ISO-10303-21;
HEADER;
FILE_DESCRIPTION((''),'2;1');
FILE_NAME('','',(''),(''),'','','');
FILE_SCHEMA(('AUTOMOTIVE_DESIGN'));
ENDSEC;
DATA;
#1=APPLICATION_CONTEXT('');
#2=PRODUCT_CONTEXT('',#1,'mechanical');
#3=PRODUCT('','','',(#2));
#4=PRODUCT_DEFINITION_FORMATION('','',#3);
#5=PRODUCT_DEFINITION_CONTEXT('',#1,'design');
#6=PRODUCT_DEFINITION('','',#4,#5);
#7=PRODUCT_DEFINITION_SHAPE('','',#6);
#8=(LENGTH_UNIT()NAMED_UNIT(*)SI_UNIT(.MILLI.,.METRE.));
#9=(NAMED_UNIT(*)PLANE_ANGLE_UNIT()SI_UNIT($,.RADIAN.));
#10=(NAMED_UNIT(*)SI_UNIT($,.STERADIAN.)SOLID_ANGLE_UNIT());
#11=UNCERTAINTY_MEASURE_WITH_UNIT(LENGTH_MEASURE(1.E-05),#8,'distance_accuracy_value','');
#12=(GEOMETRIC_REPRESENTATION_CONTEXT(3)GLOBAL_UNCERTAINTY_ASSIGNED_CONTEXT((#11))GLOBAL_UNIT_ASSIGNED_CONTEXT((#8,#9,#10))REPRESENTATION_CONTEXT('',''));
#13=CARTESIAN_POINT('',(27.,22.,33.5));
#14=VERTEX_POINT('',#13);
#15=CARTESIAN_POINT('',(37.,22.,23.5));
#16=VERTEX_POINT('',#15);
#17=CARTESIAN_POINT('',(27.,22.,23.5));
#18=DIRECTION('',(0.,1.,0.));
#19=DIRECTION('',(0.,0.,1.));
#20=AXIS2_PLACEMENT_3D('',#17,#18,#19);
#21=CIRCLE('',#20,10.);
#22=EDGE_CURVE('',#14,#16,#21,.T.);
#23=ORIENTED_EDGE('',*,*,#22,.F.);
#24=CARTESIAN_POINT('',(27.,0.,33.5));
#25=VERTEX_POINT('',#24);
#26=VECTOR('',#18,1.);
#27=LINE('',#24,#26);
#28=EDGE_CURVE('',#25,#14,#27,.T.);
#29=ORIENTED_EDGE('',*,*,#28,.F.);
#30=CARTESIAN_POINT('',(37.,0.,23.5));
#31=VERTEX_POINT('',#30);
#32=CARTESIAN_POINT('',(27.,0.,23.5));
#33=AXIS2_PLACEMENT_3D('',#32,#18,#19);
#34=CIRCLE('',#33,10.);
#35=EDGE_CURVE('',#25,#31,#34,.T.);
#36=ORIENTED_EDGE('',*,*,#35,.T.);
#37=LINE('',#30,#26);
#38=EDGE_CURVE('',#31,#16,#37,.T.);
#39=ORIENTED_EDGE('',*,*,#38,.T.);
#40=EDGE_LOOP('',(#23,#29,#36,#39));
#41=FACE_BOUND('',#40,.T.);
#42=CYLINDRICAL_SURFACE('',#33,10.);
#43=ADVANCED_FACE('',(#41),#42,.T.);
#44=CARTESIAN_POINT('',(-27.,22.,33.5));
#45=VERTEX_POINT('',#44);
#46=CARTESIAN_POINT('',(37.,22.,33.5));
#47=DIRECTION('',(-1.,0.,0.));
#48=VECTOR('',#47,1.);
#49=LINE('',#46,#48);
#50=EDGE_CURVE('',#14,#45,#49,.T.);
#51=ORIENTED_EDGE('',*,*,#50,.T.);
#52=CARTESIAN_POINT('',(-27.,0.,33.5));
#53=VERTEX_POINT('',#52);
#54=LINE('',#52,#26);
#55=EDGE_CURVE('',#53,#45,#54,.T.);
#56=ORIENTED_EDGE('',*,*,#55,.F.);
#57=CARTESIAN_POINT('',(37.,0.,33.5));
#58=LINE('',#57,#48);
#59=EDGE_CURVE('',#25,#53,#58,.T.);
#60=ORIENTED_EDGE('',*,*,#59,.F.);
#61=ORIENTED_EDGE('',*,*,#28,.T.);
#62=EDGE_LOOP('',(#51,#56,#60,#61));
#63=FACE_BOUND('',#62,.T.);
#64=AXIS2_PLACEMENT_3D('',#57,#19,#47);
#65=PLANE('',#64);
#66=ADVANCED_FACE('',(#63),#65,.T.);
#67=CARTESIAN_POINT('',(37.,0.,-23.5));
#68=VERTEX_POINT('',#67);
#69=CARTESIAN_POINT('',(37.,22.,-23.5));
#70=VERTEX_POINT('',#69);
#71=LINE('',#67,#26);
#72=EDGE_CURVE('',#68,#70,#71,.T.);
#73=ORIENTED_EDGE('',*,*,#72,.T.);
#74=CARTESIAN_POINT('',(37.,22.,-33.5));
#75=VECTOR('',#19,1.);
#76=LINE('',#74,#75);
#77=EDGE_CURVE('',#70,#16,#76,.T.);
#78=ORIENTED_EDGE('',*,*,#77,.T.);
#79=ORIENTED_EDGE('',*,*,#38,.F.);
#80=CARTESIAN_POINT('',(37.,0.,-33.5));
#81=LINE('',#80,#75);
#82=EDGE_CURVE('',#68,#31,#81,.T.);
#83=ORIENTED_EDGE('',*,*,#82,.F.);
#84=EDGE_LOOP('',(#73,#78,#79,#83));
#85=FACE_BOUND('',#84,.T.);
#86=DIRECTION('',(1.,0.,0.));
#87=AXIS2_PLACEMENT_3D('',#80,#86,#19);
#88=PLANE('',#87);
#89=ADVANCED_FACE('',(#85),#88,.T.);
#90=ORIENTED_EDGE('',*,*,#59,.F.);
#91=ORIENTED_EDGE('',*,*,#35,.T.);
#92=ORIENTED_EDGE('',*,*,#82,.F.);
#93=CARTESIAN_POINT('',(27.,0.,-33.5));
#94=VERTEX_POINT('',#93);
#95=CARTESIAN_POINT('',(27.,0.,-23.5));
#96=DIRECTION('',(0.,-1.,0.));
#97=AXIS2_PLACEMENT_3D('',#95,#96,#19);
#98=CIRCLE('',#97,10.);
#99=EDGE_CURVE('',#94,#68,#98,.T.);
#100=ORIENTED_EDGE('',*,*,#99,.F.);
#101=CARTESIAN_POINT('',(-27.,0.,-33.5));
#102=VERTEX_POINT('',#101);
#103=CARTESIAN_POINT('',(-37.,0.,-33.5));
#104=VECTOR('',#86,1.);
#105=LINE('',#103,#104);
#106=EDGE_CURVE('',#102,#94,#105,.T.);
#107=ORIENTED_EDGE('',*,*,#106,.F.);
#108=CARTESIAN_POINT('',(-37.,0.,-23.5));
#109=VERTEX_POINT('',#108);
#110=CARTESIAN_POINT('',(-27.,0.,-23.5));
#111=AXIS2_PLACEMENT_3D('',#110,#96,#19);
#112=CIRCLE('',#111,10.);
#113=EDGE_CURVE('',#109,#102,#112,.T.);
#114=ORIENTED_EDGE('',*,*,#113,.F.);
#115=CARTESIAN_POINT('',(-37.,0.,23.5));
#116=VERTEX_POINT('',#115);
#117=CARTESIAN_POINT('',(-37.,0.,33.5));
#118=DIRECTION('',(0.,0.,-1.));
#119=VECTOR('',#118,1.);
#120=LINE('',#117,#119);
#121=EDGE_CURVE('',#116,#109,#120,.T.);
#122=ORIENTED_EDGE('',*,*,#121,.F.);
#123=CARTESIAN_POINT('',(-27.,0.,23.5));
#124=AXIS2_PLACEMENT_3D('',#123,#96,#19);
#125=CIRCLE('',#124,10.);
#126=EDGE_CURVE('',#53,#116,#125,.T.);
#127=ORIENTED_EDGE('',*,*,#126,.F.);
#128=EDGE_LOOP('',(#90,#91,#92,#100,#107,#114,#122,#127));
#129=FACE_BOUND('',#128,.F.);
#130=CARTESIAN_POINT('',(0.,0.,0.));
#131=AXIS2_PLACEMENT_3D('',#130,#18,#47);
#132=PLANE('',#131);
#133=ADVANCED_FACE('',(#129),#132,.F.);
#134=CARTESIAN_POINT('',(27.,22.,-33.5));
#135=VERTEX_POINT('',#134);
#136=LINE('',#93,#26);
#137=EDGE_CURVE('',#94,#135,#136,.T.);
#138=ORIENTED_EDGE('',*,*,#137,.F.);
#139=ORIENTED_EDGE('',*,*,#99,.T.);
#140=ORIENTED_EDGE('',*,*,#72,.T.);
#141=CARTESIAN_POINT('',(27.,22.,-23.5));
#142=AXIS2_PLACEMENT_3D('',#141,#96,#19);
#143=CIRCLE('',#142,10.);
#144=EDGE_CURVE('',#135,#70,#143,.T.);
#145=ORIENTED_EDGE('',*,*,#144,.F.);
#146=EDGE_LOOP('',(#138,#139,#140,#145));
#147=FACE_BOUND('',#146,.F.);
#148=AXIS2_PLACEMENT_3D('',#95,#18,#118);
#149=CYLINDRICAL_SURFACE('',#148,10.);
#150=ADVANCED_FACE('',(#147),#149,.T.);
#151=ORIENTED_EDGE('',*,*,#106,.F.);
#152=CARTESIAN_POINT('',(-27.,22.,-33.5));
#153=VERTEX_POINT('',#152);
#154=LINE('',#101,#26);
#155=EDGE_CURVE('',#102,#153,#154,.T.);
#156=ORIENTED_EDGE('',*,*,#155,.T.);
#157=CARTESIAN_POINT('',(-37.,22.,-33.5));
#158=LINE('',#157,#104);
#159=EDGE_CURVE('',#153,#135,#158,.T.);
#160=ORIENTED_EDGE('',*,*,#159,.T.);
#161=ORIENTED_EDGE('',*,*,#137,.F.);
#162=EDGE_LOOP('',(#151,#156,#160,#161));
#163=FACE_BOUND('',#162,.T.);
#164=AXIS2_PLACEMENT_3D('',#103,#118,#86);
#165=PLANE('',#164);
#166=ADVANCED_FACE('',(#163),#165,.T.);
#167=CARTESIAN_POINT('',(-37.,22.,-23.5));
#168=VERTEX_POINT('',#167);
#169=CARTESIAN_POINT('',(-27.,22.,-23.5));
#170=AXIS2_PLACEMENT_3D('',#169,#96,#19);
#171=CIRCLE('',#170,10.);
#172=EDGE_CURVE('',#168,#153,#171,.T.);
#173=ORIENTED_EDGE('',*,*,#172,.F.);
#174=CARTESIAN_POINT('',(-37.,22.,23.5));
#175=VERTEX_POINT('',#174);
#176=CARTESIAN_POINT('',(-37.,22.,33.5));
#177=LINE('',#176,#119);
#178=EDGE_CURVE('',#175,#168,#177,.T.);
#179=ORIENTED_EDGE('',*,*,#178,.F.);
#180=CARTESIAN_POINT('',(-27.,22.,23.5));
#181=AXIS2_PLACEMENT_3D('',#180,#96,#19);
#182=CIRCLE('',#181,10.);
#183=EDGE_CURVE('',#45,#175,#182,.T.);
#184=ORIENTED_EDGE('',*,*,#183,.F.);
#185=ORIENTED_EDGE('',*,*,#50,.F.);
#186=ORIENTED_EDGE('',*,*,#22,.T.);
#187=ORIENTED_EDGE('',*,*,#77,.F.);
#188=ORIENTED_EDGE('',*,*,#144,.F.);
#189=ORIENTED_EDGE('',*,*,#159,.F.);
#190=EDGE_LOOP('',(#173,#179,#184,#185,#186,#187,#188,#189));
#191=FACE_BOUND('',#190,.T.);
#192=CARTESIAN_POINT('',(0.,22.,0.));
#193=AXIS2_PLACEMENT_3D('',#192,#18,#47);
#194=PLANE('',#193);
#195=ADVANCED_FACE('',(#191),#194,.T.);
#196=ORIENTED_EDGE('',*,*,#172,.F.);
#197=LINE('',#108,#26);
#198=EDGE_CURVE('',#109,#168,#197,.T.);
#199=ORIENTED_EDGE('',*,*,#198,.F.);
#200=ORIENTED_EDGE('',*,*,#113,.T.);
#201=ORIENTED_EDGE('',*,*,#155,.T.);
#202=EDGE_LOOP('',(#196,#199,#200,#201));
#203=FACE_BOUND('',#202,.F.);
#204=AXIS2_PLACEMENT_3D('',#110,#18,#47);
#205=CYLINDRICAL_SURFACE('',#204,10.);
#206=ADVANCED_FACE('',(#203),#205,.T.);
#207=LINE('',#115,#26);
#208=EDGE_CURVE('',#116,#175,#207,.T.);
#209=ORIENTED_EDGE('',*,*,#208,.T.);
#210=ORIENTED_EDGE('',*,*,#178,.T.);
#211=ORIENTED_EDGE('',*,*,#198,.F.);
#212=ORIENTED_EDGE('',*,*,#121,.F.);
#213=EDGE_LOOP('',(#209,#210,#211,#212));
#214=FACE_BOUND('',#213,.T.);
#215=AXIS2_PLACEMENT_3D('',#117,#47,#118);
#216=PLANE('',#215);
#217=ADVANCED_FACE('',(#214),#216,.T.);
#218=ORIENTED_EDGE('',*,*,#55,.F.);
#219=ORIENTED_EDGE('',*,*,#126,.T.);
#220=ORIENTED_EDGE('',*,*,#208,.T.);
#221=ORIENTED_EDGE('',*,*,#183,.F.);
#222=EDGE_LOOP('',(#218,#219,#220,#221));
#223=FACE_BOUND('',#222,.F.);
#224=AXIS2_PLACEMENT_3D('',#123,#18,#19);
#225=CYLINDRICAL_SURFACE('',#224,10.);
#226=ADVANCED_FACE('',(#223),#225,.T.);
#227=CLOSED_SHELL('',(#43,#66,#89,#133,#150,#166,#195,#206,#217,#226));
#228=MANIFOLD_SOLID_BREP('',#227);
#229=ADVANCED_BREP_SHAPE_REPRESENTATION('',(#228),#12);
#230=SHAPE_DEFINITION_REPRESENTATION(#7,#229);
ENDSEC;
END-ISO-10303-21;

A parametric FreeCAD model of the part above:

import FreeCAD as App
import Part
import Sketcher
Q = App.Units.Quantity


def edges_at(feature, points):
    """Names of the edges that pass closest to the given points."""
    edges = feature.Shape.Edges
    near = lambda p: min(range(len(edges)), key=lambda i: edges[i].distToShape(Part.Vertex(*p))[0])
    return sorted({f"Edge{near(p) + 1}" for p in points})

doc = App.newDocument("Part")
body = doc.addObject("PartDesign::Body", "Body")

sketch1 = doc.addObject("Sketcher::SketchObject", "Sketch")
body.addObject(sketch1)
sketch1.AttachmentSupport = (doc.XZ_Plane, [""])
sketch1.MapMode = "FlatFace"
sketch1.addGeometry([
    Part.LineSegment(App.Vector(-37, 33.5, 0), App.Vector(37, 33.5, 0)),
    Part.LineSegment(App.Vector(37, 33.5, 0), App.Vector(37, -33.5, 0)),
    Part.LineSegment(App.Vector(37, -33.5, 0), App.Vector(-37, -33.5, 0)),
    Part.LineSegment(App.Vector(-37, -33.5, 0), App.Vector(-37, 33.5, 0)),
], False)
sketch1.addConstraint([
    Sketcher.Constraint("Coincident", 0, 2, 1, 1),
    Sketcher.Constraint("Coincident", 1, 2, 2, 1),
    Sketcher.Constraint("Coincident", 2, 2, 3, 1),
    Sketcher.Constraint("Coincident", 3, 2, 0, 1),
    Sketcher.Constraint("Horizontal", 0),
    Sketcher.Constraint("Vertical", 1),
    Sketcher.Constraint("Horizontal", 2),
    Sketcher.Constraint("Vertical", 3),
    Sketcher.Constraint("Symmetric", 0, 2, 2, 2, -1, 1),
    Sketcher.Constraint("DistanceX", 0, 1, 0, 2, Q("74 mm")),
    Sketcher.Constraint("DistanceY", 1, 2, 1, 1, Q("67 mm")),
])
pad1 = doc.addObject("PartDesign::Pad", "Pad")
body.addObject(pad1)
pad1.Profile = sketch1
pad1.Length = 22
pad1.Reversed = True
doc.recompute()

fillet = doc.addObject("PartDesign::Fillet", "Fillet")
body.addObject(fillet)
fillet.Base = (pad1, edges_at(pad1, [
    (-37, 11, 33.5),
    (37, 11, 33.5),
    (37, 11, -33.5),
    (-37, 11, -33.5),
]))
fillet.Radius = 10

doc.recompute()
